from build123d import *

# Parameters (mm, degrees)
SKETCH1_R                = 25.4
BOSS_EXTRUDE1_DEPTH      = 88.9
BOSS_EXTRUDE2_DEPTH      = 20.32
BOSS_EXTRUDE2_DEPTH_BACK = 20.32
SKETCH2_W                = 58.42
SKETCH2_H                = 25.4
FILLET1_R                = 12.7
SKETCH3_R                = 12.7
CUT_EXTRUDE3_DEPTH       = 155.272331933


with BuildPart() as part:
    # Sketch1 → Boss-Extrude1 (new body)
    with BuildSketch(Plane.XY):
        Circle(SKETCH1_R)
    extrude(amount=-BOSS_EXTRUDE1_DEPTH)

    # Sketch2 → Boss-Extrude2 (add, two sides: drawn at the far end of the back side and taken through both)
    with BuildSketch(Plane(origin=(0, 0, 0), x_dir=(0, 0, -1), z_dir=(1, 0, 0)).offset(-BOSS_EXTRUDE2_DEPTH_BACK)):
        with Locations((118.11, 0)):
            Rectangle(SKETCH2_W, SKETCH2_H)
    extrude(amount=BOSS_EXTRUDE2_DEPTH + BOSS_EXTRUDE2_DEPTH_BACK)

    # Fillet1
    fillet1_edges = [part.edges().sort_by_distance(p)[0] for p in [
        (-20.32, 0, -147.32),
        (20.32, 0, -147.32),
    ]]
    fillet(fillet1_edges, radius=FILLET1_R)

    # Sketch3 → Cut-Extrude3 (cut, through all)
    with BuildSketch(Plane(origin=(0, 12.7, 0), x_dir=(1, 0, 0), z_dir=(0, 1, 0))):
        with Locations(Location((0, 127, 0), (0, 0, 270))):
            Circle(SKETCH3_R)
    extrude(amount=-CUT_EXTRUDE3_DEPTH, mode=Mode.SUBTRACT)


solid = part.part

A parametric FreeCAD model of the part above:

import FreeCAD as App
import Part
import Sketcher
Q = App.Units.Quantity


def edges_at(feature, points):
    """Names of the edges that pass closest to the given points."""
    edges = feature.Shape.Edges
    near = lambda p: min(range(len(edges)), key=lambda i: edges[i].distToShape(Part.Vertex(*p))[0])
    return sorted({f"Edge{near(p) + 1}" for p in points})

doc = App.newDocument("Part")
body = doc.addObject("PartDesign::Body", "Body")

sketch1 = body.newObject("Sketcher::SketchObject", "Sketch")
sketch1.AttachmentSupport = (doc.getObject("XY_Plane"), [""])
sketch1.MapMode = "FlatFace"
sketch1.addGeometry(Part.Circle(App.Vector(0, 0, 0), App.Vector(0, 0, 1), 25), False)
sketch1.addConstraint([
    Sketcher.Constraint("Coincident", 0, 3, -1, 1),
    Sketcher.Constraint("Diameter", 0, Q("2 in")),
])
pad1 = body.newObject("PartDesign::Pad", "Pad")
pad1.Profile = sketch1
pad1.Length = Q("3.5 in")
pad1.Reversed = True

sketch2 = body.newObject("Sketcher::SketchObject", "Sketch001")
sketch2.AttachmentSupport = (doc.getObject("YZ_Plane"), [""])
sketch2.MapMode = "FlatFace"
sketch2.addGeometry([
    Part.LineSegment(App.Vector(13, -89, 0), App.Vector(-13, -89, 0)),
    Part.LineSegment(App.Vector(-13, -89, 0), App.Vector(-13, -147, 0)),
    Part.LineSegment(App.Vector(-13, -147, 0), App.Vector(13, -147, 0)),
    Part.LineSegment(App.Vector(13, -147, 0), App.Vector(13, -89, 0)),
], False)
sketch2.addConstraint([
    Sketcher.Constraint("Coincident", 0, 2, 1, 1),
    Sketcher.Constraint("Coincident", 1, 2, 2, 1),
    Sketcher.Constraint("Coincident", 2, 2, 3, 1),
    Sketcher.Constraint("Coincident", 3, 2, 0, 1),
    Sketcher.Constraint("Horizontal", 0),
    Sketcher.Constraint("Vertical", 1),
    Sketcher.Constraint("Horizontal", 2),
    Sketcher.Constraint("Vertical", 3),
    Sketcher.Constraint("DistanceX", 0, 2, 0, 1, Q("1 in")),
    Sketcher.Constraint("DistanceY", 1, 2, 1, 1, Q("2.3 in")),
    Sketcher.Constraint("DistanceX", 0, 2, -1, 1, Q("0.5 in")),
    Sketcher.Constraint("DistanceY", 0, 2, -1, 1, Q("3.5 in")),
])
pad2 = body.newObject("PartDesign::Pad", "Pad001")
pad2.Profile = sketch2
pad2.Type = "TwoLengths"
pad2.Length = Q("0.8 in")
pad2.Length2 = Q("0.8 in")
doc.recompute()

fillet = body.newObject("PartDesign::Fillet", "Fillet")
fillet.Base = (pad2, edges_at(pad2, [(-20.32, 0, -147.32), (20.32, 0, -147.32)]))
fillet.Radius = Q("0.5 in")

sketch3 = body.newObject("Sketcher::SketchObject", "Sketch002")
sketch3.AttachmentSupport = (doc.getObject("XZ_Plane"), [""])
sketch3.MapMode = "FlatFace"
sketch3.AttachmentOffset = App.Placement(App.Vector(0, 0, -0.5 * 25.4), App.Rotation())
sketch3.addGeometry(Part.Circle(App.Vector(0, -127, 0), App.Vector(0, 0, 1), 13), False)
sketch3.addConstraint([
    Sketcher.Constraint("PointOnObject", 0, 3, -2),
    Sketcher.Constraint("Diameter", 0, Q("1 in")),
    Sketcher.Constraint("DistanceY", 0, 3, -1, 1, Q("5 in")),
])
pocket1 = body.newObject("PartDesign::Pocket", "Pocket")
pocket1.Profile = sketch3
pocket1.Type = "ThroughAll"
pocket1.Reversed = True

doc.recompute()
